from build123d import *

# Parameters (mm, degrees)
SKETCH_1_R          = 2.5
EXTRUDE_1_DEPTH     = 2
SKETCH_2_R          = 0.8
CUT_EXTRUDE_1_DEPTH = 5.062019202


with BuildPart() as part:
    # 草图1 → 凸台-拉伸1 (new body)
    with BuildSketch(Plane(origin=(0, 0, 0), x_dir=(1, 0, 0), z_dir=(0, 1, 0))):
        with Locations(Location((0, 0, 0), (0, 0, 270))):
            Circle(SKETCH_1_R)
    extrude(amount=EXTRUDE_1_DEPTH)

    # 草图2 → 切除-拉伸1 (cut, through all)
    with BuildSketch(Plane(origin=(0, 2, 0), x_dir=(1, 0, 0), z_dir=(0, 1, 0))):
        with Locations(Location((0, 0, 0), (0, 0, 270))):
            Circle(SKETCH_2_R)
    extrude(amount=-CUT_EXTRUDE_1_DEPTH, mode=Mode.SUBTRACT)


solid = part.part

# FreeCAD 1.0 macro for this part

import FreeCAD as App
import Part
import Sketcher
from FreeCAD import Vector

doc = App.newDocument("Part")
body = doc.addObject("PartDesign::Body", "Body")

sketch1 = body.newObject("Sketcher::SketchObject", "Sketch")
sketch1.AttachmentSupport = (doc.getObject("XZ_Plane"), [""])
sketch1.MapMode = "FlatFace"
sketch1.addGeometry(Part.Circle(Vector(0, 0, 0), Vector(0, 0, 1), 2.5), False)
sketch1.addConstraint([
    Sketcher.Constraint("Coincident", 0, 3, -1, 1),
    Sketcher.Constraint("Diameter", 0, 5.0),
])
pad1 = body.newObject("PartDesign::Pad", "Pad")
pad1.Profile = sketch1
pad1.Length = 2
pad1.Reversed = True

sketch2 = body.newObject("Sketcher::SketchObject", "Sketch001")
sketch2.AttachmentSupport = (doc.getObject("XZ_Plane"), [""])
sketch2.MapMode = "FlatFace"
sketch2.AttachmentOffset = App.Placement(Vector(0, 0, -2), App.Rotation())
sketch2.addGeometry(Part.Circle(Vector(0, 0, 0), Vector(0, 0, 1), 0.8), False)
sketch2.addConstraint([
    Sketcher.Constraint("Coincident", 0, 3, -1, 1),
    Sketcher.Constraint("Diameter", 0, 1.6),
])
pocket1 = body.newObject("PartDesign::Pocket", "Pocket")
pocket1.Profile = sketch2
pocket1.Type = "ThroughAll"
pocket1.Reversed = True

doc.recompute()
